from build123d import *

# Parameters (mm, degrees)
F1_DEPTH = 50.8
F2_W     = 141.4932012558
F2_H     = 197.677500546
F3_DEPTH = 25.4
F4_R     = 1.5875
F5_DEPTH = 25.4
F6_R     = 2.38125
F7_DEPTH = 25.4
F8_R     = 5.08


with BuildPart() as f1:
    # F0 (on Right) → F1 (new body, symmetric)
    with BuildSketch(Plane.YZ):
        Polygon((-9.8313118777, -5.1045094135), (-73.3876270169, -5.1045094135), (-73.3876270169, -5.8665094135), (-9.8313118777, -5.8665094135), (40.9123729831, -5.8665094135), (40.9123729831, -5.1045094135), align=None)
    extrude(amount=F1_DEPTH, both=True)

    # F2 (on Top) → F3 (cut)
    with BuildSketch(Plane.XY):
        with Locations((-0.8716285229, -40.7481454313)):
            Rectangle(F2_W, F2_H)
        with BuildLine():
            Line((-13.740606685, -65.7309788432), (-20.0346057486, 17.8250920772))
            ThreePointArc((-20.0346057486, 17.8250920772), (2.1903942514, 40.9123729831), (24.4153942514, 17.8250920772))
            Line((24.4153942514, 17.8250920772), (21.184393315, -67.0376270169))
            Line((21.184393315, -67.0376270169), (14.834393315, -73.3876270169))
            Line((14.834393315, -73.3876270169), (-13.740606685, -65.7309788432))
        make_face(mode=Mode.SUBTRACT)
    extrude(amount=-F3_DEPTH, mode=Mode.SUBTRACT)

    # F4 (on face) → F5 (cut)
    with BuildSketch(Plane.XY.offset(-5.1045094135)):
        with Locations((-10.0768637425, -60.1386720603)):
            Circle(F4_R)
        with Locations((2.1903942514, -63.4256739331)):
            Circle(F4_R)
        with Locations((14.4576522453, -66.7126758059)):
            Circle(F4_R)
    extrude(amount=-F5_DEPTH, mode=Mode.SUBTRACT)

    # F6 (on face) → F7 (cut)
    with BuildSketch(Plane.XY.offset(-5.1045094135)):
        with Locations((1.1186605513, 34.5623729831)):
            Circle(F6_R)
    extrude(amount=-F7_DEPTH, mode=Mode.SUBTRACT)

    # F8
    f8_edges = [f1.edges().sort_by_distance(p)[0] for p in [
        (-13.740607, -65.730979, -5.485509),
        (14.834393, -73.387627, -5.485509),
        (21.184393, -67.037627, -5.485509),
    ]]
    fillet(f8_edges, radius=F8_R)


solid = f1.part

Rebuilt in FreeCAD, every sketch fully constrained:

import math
import FreeCAD as App
import Part
import Sketcher

V = App.Vector
Q = App.Units.Quantity


def edges_at(feature, points):
    """Names of the edges that pass closest to the given points."""
    edges = feature.Shape.Edges
    near = lambda p: min(range(len(edges)), key=lambda i: edges[i].distToShape(Part.Vertex(*p))[0])
    return sorted({f"Edge{near(p) + 1}" for p in points})

doc = App.newDocument("Part")
body = doc.addObject("PartDesign::Body", "Body")

# Sketch on YZ plane
sketch1 = doc.addObject("Sketcher::SketchObject", "Sketch")
body.addObject(sketch1)
sketch1.AttachmentSupport = (doc.YZ_Plane, [""])
sketch1.MapMode = "FlatFace"
sketch1.addGeometry([
    Part.LineSegment(V(-73.4, -5.1, 0), V(-73.4, -5.9, 0)),
    Part.LineSegment(V(-73.4, -5.9, 0), V(40.9, -5.9, 0)),
    Part.LineSegment(V(40.9, -5.9, 0), V(40.9, -5.1, 0)),
    Part.LineSegment(V(40.9, -5.1, 0), V(-73.4, -5.1, 0)),
], False)
sketch1.addConstraint([
    Sketcher.Constraint("Coincident", 0, 2, 1, 1),
    Sketcher.Constraint("Coincident", 1, 2, 2, 1),
    Sketcher.Constraint("Coincident", 2, 2, 3, 1),
    Sketcher.Constraint("Coincident", 3, 2, 0, 1),
    Sketcher.Constraint("Vertical", 0),
    Sketcher.Constraint("Horizontal", 1),
    Sketcher.Constraint("Vertical", 2),
    Sketcher.Constraint("Horizontal", 3),
    Sketcher.Constraint("DistanceX", 1, 1, 1, 2, Q("4.5 in")),
    Sketcher.Constraint("DistanceY", 0, 2, 0, 1, Q("0.03 in")),
    Sketcher.Constraint("DistanceY", 0, 2, -1, 1, Q("5.866509 mm")),
    Sketcher.Constraint("DistanceX", 0, 2, -1, 1, Q("73.387627 mm")),
])
pad1 = doc.addObject("PartDesign::Pad", "Pad")
body.addObject(pad1)
pad1.Profile = sketch1
pad1.Length = Q("4 in")
pad1.Midplane = True

# Sketch on XY plane
sketch2 = doc.addObject("Sketcher::SketchObject", "Sketch001")
body.addObject(sketch2)
sketch2.AttachmentSupport = (doc.XY_Plane, [""])
sketch2.MapMode = "FlatFace"
sketch2.addGeometry([
    Part.LineSegment(V(-71.618229, 58.090605, 0), V(-71.618229, -139.586896, 0)),  # 0
    Part.LineSegment(V(-71.618229, -139.586896, 0), V(69.874972, -139.586896, 0)),  # 1
    Part.LineSegment(V(69.874972, -139.586896, 0), V(69.874972, 58.090605, 0)),  # 2
    Part.LineSegment(V(69.874972, 58.090605, 0), V(-71.618229, 58.090605, 0)),  # 3
    Part.LineSegment(V(14.834393, -73.387627, 0), V(-13.740607, -65.730979, 0)),  # 4
    Part.LineSegment(V(-13.740607, -65.730979, 0), V(-20.034606, 17.825092, 0)),  # 5
    Part.ArcOfCircle(Part.Circle(V(2.190394, 18.67127, 0), V(0, 0, 1), 22.241103), math.radians(-2.180384), math.radians(182.180384)),  # 6
    Part.LineSegment(V(24.415394, 17.825092, 0), V(21.184393, -67.037627, 0)),  # 7
    Part.LineSegment(V(21.184393, -67.037627, 0), V(14.834393, -73.387627, 0)),  # 8
], False)
sketch2.addConstraint([
    Sketcher.Constraint("Coincident", 0, 2, 1, 1),
    Sketcher.Constraint("Coincident", 1, 2, 2, 1),
    Sketcher.Constraint("Coincident", 2, 2, 3, 1),
    Sketcher.Constraint("Coincident", 3, 2, 0, 1),
    Sketcher.Constraint("Coincident", 4, 2, 5, 1),
    Sketcher.Constraint("Coincident", 5, 2, 6, 2),
    Sketcher.Constraint("Coincident", 6, 1, 7, 1),
    Sketcher.Constraint("Coincident", 7, 2, 8, 1),
    Sketcher.Constraint("Coincident", 8, 2, 4, 1),
    Sketcher.Constraint("Vertical", 0),
    Sketcher.Constraint("Horizontal", 1),
    Sketcher.Constraint("Vertical", 2),
    Sketcher.Constraint("Horizontal", 3),
    Sketcher.Constraint("DistanceX", 5, 2, 6, 1, Q("1.75 in")),
    Sketcher.Constraint("DistanceX", 8, 2, 7, 2, Q("0.25 in")),
    Sketcher.Constraint("DistanceY", 8, 2, 7, 2, Q("0.25 in")),
    Sketcher.Constraint("DistanceX", 5, 2, 6, 3, Q("0.875 in")),
    Sketcher.Constraint("DistanceX", 4, 2, 7, 2, Q("1.375 in")),
    Sketcher.Constraint("DistanceX", 1, 1, 1, 2, Q("141.493201 mm")),
    Sketcher.Constraint("DistanceY", 0, 2, 0, 1, Q("197.677501 mm")),
    Sketcher.Constraint("Radius", 6, Q("22.241103 mm")),
    Sketcher.Constraint("DistanceX", 4, 2, 6, 3, Q("15.931001 mm")),
    Sketcher.Constraint("Distance", 5, Q("83.792789 mm")),
    Sketcher.Constraint("DistanceY", -1, 1, 6, 3, Q("18.67127 mm")),
    Sketcher.Constraint("DistanceX", 0, 2, -1, 1, Q("71.618229 mm")),
    Sketcher.Constraint("DistanceX", 4, 2, 1, 2, Q("83.615579 mm")),
    Sketcher.Constraint("DistanceY", 7, 2, 4, 2, Q("1.306648 mm")),
    Sketcher.Constraint("DistanceY", 1, 2, 7, 2, Q("72.549269 mm")),
])
pocket1 = doc.addObject("PartDesign::Pocket", "Pocket")
body.addObject(pocket1)
pocket1.Profile = sketch2
pocket1.Length = Q("1 in")

# Sketch on XY plane
sketch3 = doc.addObject("Sketcher::SketchObject", "Sketch002")
body.addObject(sketch3)
sketch3.AttachmentSupport = (doc.XY_Plane, [""])
sketch3.MapMode = "FlatFace"
sketch3.AttachmentOffset = App.Placement(V(0, 0, -5.104509), App.Rotation())
sketch3.addGeometry([
    Part.Circle(V(-10.1, -60.1, 0), V(0, 0, 1), 1.6),
    Part.Circle(V(2.2, -63.4, 0), V(0, 0, 1), 1.6),
    Part.Circle(V(14.5, -66.7, 0), V(0, 0, 1), 1.6),
], False)
sketch3.addConstraint([
    Sketcher.Constraint("Equal", 0, 1),
    Sketcher.Constraint("Equal", 1, 2),
    Sketcher.Constraint("Diameter", 0, Q("0.125 in")),
    Sketcher.Constraint("DistanceY", 1, 3, 0, 3, Q("3.287002 mm")),
    Sketcher.Constraint("DistanceY", 2, 3, 1, 3, Q("3.287002 mm")),
    Sketcher.Constraint("DistanceX", 0, 3, -1, 1, Q("10.076864 mm")),
    Sketcher.Constraint("DistanceY", 0, 3, -1, 1, Q("60.138672 mm")),
    Sketcher.Constraint("DistanceX", -1, 1, 1, 3, Q("2.190394 mm")),
    Sketcher.Constraint("DistanceX", -1, 1, 2, 3, Q("14.457652 mm")),
])
pocket2 = doc.addObject("PartDesign::Pocket", "Pocket001")
body.addObject(pocket2)
pocket2.Profile = sketch3
pocket2.Length = Q("1 in")

# Sketch on XY plane
sketch4 = doc.addObject("Sketcher::SketchObject", "Sketch003")
body.addObject(sketch4)
sketch4.AttachmentSupport = (doc.XY_Plane, [""])
sketch4.MapMode = "FlatFace"
sketch4.AttachmentOffset = App.Placement(V(0, 0, -5.104509), App.Rotation())
sketch4.addGeometry(Part.Circle(V(1.1, 34.6, 0), V(0, 0, 1), 2.4), False)
sketch4.addConstraint([
    Sketcher.Constraint("Diameter", 0, Q("0.1875 in")),
    Sketcher.Constraint("DistanceX", -1, 1, 0, 3, Q("1.118661 mm")),
    Sketcher.Constraint("DistanceY", -1, 1, 0, 3, Q("34.562373 mm")),
])
pocket3 = doc.addObject("PartDesign::Pocket", "Pocket002")
body.addObject(pocket3)
pocket3.Profile = sketch4
pocket3.Length = Q("1 in")
doc.recompute()

fillet = doc.addObject("PartDesign::Fillet", "Fillet")
body.addObject(fillet)
fillet.Base = (pocket3, edges_at(pocket3, [(-13.741, -65.731, -5.486), (14.834, -73.388, -5.486), (21.184, -67.038, -5.486)]))
fillet.Radius = Q("0.2 in")

doc.recompute()
